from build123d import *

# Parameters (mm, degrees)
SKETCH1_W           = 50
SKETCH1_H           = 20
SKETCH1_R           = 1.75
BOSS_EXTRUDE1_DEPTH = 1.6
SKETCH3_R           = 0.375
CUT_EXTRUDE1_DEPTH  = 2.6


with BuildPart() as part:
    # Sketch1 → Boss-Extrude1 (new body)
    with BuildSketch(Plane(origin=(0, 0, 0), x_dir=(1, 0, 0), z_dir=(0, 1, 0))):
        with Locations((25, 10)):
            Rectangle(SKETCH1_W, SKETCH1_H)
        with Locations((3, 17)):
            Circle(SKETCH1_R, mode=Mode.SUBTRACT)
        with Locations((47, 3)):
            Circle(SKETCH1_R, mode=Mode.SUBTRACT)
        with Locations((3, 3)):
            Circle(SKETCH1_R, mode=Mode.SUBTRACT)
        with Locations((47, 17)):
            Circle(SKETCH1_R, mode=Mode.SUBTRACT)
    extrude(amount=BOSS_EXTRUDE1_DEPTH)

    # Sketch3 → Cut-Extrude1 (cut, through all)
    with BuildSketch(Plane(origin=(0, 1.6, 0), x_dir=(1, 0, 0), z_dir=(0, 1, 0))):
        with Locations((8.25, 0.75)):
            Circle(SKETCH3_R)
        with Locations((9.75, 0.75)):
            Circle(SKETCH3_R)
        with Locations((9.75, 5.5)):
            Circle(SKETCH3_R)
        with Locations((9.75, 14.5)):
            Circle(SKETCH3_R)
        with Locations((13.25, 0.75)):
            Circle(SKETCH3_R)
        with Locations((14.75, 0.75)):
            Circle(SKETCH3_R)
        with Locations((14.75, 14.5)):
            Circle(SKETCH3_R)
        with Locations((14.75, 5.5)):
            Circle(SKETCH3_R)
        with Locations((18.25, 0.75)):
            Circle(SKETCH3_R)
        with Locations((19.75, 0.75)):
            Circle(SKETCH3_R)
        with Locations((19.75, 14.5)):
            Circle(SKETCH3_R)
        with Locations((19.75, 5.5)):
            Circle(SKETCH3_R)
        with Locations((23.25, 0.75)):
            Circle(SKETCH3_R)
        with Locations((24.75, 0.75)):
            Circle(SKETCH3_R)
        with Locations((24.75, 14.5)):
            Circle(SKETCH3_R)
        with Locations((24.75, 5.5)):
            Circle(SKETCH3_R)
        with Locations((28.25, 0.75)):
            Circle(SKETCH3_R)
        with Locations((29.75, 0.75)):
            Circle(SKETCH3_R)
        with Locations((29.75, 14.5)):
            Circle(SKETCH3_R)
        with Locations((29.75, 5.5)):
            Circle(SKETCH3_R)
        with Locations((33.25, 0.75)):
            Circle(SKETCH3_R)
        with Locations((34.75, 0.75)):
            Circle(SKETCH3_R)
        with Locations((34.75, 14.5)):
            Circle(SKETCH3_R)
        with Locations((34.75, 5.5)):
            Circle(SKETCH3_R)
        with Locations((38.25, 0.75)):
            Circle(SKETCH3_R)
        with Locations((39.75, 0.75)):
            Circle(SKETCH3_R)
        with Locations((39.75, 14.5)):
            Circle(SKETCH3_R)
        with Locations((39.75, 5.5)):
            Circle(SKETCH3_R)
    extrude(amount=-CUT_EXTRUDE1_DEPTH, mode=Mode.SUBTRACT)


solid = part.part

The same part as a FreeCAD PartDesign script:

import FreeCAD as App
import Part
import Sketcher
from FreeCAD import Vector
Q = App.Units.Quantity


def add_polygon(sketch, points):
    """Adds a closed chain of lines whose ends are joined by coincident constraints."""
    first, n = sketch.GeometryCount, len(points)
    for a, b in zip(points, points[1:] + points[:1]):
        sketch.addGeometry(Part.LineSegment(App.Vector(*a, 0), App.Vector(*b, 0)), False)
    for i in range(n):
        sketch.addConstraint(Sketcher.Constraint("Coincident", first + i, 2, first + (i + 1) % n, 1))

doc = App.newDocument("Part")
body = doc.addObject("PartDesign::Body", "Body")

# Sketch on XZ plane
sketch1 = body.newObject("Sketcher::SketchObject", "Sketch")
sketch1.AttachmentSupport = (doc.getObject("XZ_Plane"), [""])
sketch1.MapMode = "FlatFace"
add_polygon(sketch1, [(0, -20), (0, 0), (50, 0), (50, -20)])  # lines 0-3
sketch1.addGeometry(Part.Circle(Vector(3, -3, 0), Vector(0, 0, 1), 1.75), False)  # 4
sketch1.addGeometry(Part.Circle(Vector(47, -3, 0), Vector(0, 0, 1), 1.75), False)  # 5
sketch1.addGeometry(Part.Circle(Vector(3, -17, 0), Vector(0, 0, 1), 1.75), False)  # 6
sketch1.addGeometry(Part.Circle(Vector(47, -17, 0), Vector(0, 0, 1), 1.75), False)  # 7
sketch1.addConstraint([
    Sketcher.Constraint("Vertical", 0),
    Sketcher.Constraint("Horizontal", 1),
    Sketcher.Constraint("Vertical", 2),
    Sketcher.Constraint("Horizontal", 3),
    Sketcher.Constraint("Coincident", 0, 2, -1, 1),
    Sketcher.Constraint("Equal", 4, 5),
    Sketcher.Constraint("Equal", 5, 6),
    Sketcher.Constraint("Equal", 6, 7),
    Sketcher.Constraint("Horizontal", 4, 3, 5, 3),
    Sketcher.Constraint("Horizontal", 6, 3, 7, 3),
    Sketcher.Constraint("Vertical", 4, 3, 6, 3),
    Sketcher.Constraint("Vertical", 5, 3, 7, 3),
    Sketcher.Constraint("Diameter", 4, Q("3.5 mm")),
    Sketcher.Constraint("DistanceX", 1, 1, 1, 2, Q("50 mm")),
    Sketcher.Constraint("DistanceY", 0, 1, 0, 2, Q("20 mm")),
    Sketcher.Constraint("DistanceX", -1, 1, 4, 3, Q("3 mm")),
    Sketcher.Constraint("DistanceY", 4, 3, -1, 1, Q("3 mm")),
    Sketcher.Constraint("DistanceX", -1, 1, 5, 3, Q("47 mm")),
    Sketcher.Constraint("DistanceY", 6, 3, -1, 1, Q("17 mm")),
])
pad1 = body.newObject("PartDesign::Pad", "Pad")
pad1.Profile = sketch1
pad1.Length = 1.6
pad1.Reversed = True

# Sketch on XZ plane
sketch2 = body.newObject("Sketcher::SketchObject", "Sketch001")
sketch2.AttachmentSupport = (doc.getObject("XZ_Plane"), [""])
sketch2.MapMode = "FlatFace"
sketch2.AttachmentOffset = App.Placement(Vector(0, 0, -1.6), App.Rotation())
sketch2.addGeometry([
    Part.Circle(Vector(8.25, -0.75, 0), Vector(0, 0, 1), 0.375),  # 0
    Part.Circle(Vector(9.75, -0.75, 0), Vector(0, 0, 1), 0.375),  # 1
    Part.Circle(Vector(9.75, -5.5, 0), Vector(0, 0, 1), 0.375),  # 2
    Part.Circle(Vector(9.75, -14.5, 0), Vector(0, 0, 1), 0.375),  # 3
    Part.Circle(Vector(13.25, -0.75, 0), Vector(0, 0, 1), 0.375),  # 4
    Part.Circle(Vector(14.75, -0.75, 0), Vector(0, 0, 1), 0.375),  # 5
    Part.Circle(Vector(14.75, -14.5, 0), Vector(0, 0, 1), 0.375),  # 6
    Part.Circle(Vector(14.75, -5.5, 0), Vector(0, 0, 1), 0.375),  # 7
    Part.Circle(Vector(18.25, -0.75, 0), Vector(0, 0, 1), 0.375),  # 8
    Part.Circle(Vector(19.75, -0.75, 0), Vector(0, 0, 1), 0.375),  # 9
    Part.Circle(Vector(19.75, -14.5, 0), Vector(0, 0, 1), 0.375),  # 10
    Part.Circle(Vector(19.75, -5.5, 0), Vector(0, 0, 1), 0.375),  # 11
    Part.Circle(Vector(23.25, -0.75, 0), Vector(0, 0, 1), 0.375),  # 12
    Part.Circle(Vector(24.75, -0.75, 0), Vector(0, 0, 1), 0.375),  # 13
    Part.Circle(Vector(24.75, -14.5, 0), Vector(0, 0, 1), 0.375),  # 14
    Part.Circle(Vector(24.75, -5.5, 0), Vector(0, 0, 1), 0.375),  # 15
    Part.Circle(Vector(28.25, -0.75, 0), Vector(0, 0, 1), 0.375),  # 16
    Part.Circle(Vector(29.75, -0.75, 0), Vector(0, 0, 1), 0.375),  # 17
    Part.Circle(Vector(29.75, -14.5, 0), Vector(0, 0, 1), 0.375),  # 18
    Part.Circle(Vector(29.75, -5.5, 0), Vector(0, 0, 1), 0.375),  # 19
    Part.Circle(Vector(33.25, -0.75, 0), Vector(0, 0, 1), 0.375),  # 20
    Part.Circle(Vector(34.75, -0.75, 0), Vector(0, 0, 1), 0.375),  # 21
    Part.Circle(Vector(34.75, -14.5, 0), Vector(0, 0, 1), 0.375),  # 22
    Part.Circle(Vector(34.75, -5.5, 0), Vector(0, 0, 1), 0.375),  # 23
    Part.Circle(Vector(38.25, -0.75, 0), Vector(0, 0, 1), 0.375),  # 24
    Part.Circle(Vector(39.75, -0.75, 0), Vector(0, 0, 1), 0.375),  # 25
    Part.Circle(Vector(39.75, -14.5, 0), Vector(0, 0, 1), 0.375),  # 26
    Part.Circle(Vector(39.75, -5.5, 0), Vector(0, 0, 1), 0.375),  # 27
], False)
sketch2.addConstraint([
    Sketcher.Constraint("Equal", 0, 1),
    Sketcher.Constraint("Equal", 1, 2),
    Sketcher.Constraint("Equal", 2, 3),
    Sketcher.Constraint("Equal", 3, 4),
    Sketcher.Constraint("Equal", 4, 5),
    Sketcher.Constraint("Equal", 5, 6),
    Sketcher.Constraint("Equal", 6, 7),
    Sketcher.Constraint("Equal", 7, 8),
    Sketcher.Constraint("Equal", 8, 9),
    Sketcher.Constraint("Equal", 9, 10),
    Sketcher.Constraint("Equal", 10, 11),
    Sketcher.Constraint("Equal", 11, 12),
    Sketcher.Constraint("Equal", 12, 13),
    Sketcher.Constraint("Equal", 13, 14),
    Sketcher.Constraint("Equal", 14, 15),
    Sketcher.Constraint("Equal", 15, 16),
    Sketcher.Constraint("Equal", 16, 17),
    Sketcher.Constraint("Equal", 17, 18),
    Sketcher.Constraint("Equal", 18, 19),
    Sketcher.Constraint("Equal", 19, 20),
    Sketcher.Constraint("Equal", 20, 21),
    Sketcher.Constraint("Equal", 21, 22),
    Sketcher.Constraint("Equal", 22, 23),
    Sketcher.Constraint("Equal", 23, 24),
    Sketcher.Constraint("Equal", 24, 25),
    Sketcher.Constraint("Equal", 25, 26),
    Sketcher.Constraint("Equal", 26, 27),
    Sketcher.Constraint("Horizontal", 0, 3, 1, 3),
    Sketcher.Constraint("Horizontal", 1, 3, 4, 3),
    Sketcher.Constraint("Horizontal", 4, 3, 5, 3),
    Sketcher.Constraint("Horizontal", 3, 3, 6, 3),
    Sketcher.Constraint("Horizontal", 2, 3, 7, 3),
    Sketcher.Constraint("Horizontal", 5, 3, 8, 3),
    Sketcher.Constraint("Horizontal", 8, 3, 9, 3),
    Sketcher.Constraint("Horizontal", 6, 3, 10, 3),
    Sketcher.Constraint("Horizontal", 7, 3, 11, 3),
    Sketcher.Constraint("Horizontal", 9, 3, 12, 3),
    Sketcher.Constraint("Horizontal", 12, 3, 13, 3),
    Sketcher.Constraint("Horizontal", 10, 3, 14, 3),
    Sketcher.Constraint("Horizontal", 11, 3, 15, 3),
    Sketcher.Constraint("Horizontal", 13, 3, 16, 3),
    Sketcher.Constraint("Horizontal", 16, 3, 17, 3),
    Sketcher.Constraint("Horizontal", 14, 3, 18, 3),
    Sketcher.Constraint("Horizontal", 15, 3, 19, 3),
    Sketcher.Constraint("Horizontal", 17, 3, 20, 3),
    Sketcher.Constraint("Horizontal", 20, 3, 21, 3),
    Sketcher.Constraint("Horizontal", 18, 3, 22, 3),
    Sketcher.Constraint("Horizontal", 19, 3, 23, 3),
    Sketcher.Constraint("Horizontal", 21, 3, 24, 3),
    Sketcher.Constraint("Horizontal", 24, 3, 25, 3),
    Sketcher.Constraint("Horizontal", 22, 3, 26, 3),
    Sketcher.Constraint("Horizontal", 23, 3, 27, 3),
    Sketcher.Constraint("Vertical", 1, 3, 2, 3),
    Sketcher.Constraint("Vertical", 2, 3, 3, 3),
    Sketcher.Constraint("Vertical", 5, 3, 6, 3),
    Sketcher.Constraint("Vertical", 6, 3, 7, 3),
    Sketcher.Constraint("Vertical", 9, 3, 10, 3),
    Sketcher.Constraint("Vertical", 10, 3, 11, 3),
    Sketcher.Constraint("Vertical", 13, 3, 14, 3),
    Sketcher.Constraint("Vertical", 14, 3, 15, 3),
    Sketcher.Constraint("Vertical", 17, 3, 18, 3),
    Sketcher.Constraint("Vertical", 18, 3, 19, 3),
    Sketcher.Constraint("Vertical", 21, 3, 22, 3),
    Sketcher.Constraint("Vertical", 22, 3, 23, 3),
    Sketcher.Constraint("Vertical", 25, 3, 26, 3),
    Sketcher.Constraint("Vertical", 26, 3, 27, 3),
    Sketcher.Constraint("Diameter", 0, Q("0.75 mm")),
    Sketcher.Constraint("DistanceY", 3, 3, 2, 3, Q("9 mm")),
    Sketcher.Constraint("DistanceX", 0, 3, 4, 3, Q("5 mm")),
    Sketcher.Constraint("DistanceX", 1, 3, 5, 3, Q("5 mm")),
    Sketcher.Constraint("DistanceX", 4, 3, 8, 3, Q("5 mm")),
    Sketcher.Constraint("DistanceX", 5, 3, 9, 3, Q("5 mm")),
    Sketcher.Constraint("DistanceX", 8, 3, 12, 3, Q("5 mm")),
    Sketcher.Constraint("DistanceX", 9, 3, 13, 3, Q("5 mm")),
    Sketcher.Constraint("DistanceX", 12, 3, 16, 3, Q("5 mm")),
    Sketcher.Constraint("DistanceX", 13, 3, 17, 3, Q("5 mm")),
    Sketcher.Constraint("DistanceX", 16, 3, 20, 3, Q("5 mm")),
    Sketcher.Constraint("DistanceX", 17, 3, 21, 3, Q("5 mm")),
    Sketcher.Constraint("DistanceX", 20, 3, 24, 3, Q("5 mm")),
    Sketcher.Constraint("DistanceX", 21, 3, 25, 3, Q("5 mm")),
    Sketcher.Constraint("DistanceY", 2, 3, -1, 1, Q("5.5 mm")),
    Sketcher.Constraint("DistanceX", 0, 3, 1, 3, Q("1.5 mm")),
    Sketcher.Constraint("DistanceX", -1, 1, 0, 3, Q("8.25 mm")),
    Sketcher.Constraint("DistanceY", 0, 3, -1, 1, Q("0.75 mm")),
])
pocket1 = body.newObject("PartDesign::Pocket", "Pocket")
pocket1.Profile = sketch2
pocket1.Type = "ThroughAll"
pocket1.Reversed = True

doc.recompute()
